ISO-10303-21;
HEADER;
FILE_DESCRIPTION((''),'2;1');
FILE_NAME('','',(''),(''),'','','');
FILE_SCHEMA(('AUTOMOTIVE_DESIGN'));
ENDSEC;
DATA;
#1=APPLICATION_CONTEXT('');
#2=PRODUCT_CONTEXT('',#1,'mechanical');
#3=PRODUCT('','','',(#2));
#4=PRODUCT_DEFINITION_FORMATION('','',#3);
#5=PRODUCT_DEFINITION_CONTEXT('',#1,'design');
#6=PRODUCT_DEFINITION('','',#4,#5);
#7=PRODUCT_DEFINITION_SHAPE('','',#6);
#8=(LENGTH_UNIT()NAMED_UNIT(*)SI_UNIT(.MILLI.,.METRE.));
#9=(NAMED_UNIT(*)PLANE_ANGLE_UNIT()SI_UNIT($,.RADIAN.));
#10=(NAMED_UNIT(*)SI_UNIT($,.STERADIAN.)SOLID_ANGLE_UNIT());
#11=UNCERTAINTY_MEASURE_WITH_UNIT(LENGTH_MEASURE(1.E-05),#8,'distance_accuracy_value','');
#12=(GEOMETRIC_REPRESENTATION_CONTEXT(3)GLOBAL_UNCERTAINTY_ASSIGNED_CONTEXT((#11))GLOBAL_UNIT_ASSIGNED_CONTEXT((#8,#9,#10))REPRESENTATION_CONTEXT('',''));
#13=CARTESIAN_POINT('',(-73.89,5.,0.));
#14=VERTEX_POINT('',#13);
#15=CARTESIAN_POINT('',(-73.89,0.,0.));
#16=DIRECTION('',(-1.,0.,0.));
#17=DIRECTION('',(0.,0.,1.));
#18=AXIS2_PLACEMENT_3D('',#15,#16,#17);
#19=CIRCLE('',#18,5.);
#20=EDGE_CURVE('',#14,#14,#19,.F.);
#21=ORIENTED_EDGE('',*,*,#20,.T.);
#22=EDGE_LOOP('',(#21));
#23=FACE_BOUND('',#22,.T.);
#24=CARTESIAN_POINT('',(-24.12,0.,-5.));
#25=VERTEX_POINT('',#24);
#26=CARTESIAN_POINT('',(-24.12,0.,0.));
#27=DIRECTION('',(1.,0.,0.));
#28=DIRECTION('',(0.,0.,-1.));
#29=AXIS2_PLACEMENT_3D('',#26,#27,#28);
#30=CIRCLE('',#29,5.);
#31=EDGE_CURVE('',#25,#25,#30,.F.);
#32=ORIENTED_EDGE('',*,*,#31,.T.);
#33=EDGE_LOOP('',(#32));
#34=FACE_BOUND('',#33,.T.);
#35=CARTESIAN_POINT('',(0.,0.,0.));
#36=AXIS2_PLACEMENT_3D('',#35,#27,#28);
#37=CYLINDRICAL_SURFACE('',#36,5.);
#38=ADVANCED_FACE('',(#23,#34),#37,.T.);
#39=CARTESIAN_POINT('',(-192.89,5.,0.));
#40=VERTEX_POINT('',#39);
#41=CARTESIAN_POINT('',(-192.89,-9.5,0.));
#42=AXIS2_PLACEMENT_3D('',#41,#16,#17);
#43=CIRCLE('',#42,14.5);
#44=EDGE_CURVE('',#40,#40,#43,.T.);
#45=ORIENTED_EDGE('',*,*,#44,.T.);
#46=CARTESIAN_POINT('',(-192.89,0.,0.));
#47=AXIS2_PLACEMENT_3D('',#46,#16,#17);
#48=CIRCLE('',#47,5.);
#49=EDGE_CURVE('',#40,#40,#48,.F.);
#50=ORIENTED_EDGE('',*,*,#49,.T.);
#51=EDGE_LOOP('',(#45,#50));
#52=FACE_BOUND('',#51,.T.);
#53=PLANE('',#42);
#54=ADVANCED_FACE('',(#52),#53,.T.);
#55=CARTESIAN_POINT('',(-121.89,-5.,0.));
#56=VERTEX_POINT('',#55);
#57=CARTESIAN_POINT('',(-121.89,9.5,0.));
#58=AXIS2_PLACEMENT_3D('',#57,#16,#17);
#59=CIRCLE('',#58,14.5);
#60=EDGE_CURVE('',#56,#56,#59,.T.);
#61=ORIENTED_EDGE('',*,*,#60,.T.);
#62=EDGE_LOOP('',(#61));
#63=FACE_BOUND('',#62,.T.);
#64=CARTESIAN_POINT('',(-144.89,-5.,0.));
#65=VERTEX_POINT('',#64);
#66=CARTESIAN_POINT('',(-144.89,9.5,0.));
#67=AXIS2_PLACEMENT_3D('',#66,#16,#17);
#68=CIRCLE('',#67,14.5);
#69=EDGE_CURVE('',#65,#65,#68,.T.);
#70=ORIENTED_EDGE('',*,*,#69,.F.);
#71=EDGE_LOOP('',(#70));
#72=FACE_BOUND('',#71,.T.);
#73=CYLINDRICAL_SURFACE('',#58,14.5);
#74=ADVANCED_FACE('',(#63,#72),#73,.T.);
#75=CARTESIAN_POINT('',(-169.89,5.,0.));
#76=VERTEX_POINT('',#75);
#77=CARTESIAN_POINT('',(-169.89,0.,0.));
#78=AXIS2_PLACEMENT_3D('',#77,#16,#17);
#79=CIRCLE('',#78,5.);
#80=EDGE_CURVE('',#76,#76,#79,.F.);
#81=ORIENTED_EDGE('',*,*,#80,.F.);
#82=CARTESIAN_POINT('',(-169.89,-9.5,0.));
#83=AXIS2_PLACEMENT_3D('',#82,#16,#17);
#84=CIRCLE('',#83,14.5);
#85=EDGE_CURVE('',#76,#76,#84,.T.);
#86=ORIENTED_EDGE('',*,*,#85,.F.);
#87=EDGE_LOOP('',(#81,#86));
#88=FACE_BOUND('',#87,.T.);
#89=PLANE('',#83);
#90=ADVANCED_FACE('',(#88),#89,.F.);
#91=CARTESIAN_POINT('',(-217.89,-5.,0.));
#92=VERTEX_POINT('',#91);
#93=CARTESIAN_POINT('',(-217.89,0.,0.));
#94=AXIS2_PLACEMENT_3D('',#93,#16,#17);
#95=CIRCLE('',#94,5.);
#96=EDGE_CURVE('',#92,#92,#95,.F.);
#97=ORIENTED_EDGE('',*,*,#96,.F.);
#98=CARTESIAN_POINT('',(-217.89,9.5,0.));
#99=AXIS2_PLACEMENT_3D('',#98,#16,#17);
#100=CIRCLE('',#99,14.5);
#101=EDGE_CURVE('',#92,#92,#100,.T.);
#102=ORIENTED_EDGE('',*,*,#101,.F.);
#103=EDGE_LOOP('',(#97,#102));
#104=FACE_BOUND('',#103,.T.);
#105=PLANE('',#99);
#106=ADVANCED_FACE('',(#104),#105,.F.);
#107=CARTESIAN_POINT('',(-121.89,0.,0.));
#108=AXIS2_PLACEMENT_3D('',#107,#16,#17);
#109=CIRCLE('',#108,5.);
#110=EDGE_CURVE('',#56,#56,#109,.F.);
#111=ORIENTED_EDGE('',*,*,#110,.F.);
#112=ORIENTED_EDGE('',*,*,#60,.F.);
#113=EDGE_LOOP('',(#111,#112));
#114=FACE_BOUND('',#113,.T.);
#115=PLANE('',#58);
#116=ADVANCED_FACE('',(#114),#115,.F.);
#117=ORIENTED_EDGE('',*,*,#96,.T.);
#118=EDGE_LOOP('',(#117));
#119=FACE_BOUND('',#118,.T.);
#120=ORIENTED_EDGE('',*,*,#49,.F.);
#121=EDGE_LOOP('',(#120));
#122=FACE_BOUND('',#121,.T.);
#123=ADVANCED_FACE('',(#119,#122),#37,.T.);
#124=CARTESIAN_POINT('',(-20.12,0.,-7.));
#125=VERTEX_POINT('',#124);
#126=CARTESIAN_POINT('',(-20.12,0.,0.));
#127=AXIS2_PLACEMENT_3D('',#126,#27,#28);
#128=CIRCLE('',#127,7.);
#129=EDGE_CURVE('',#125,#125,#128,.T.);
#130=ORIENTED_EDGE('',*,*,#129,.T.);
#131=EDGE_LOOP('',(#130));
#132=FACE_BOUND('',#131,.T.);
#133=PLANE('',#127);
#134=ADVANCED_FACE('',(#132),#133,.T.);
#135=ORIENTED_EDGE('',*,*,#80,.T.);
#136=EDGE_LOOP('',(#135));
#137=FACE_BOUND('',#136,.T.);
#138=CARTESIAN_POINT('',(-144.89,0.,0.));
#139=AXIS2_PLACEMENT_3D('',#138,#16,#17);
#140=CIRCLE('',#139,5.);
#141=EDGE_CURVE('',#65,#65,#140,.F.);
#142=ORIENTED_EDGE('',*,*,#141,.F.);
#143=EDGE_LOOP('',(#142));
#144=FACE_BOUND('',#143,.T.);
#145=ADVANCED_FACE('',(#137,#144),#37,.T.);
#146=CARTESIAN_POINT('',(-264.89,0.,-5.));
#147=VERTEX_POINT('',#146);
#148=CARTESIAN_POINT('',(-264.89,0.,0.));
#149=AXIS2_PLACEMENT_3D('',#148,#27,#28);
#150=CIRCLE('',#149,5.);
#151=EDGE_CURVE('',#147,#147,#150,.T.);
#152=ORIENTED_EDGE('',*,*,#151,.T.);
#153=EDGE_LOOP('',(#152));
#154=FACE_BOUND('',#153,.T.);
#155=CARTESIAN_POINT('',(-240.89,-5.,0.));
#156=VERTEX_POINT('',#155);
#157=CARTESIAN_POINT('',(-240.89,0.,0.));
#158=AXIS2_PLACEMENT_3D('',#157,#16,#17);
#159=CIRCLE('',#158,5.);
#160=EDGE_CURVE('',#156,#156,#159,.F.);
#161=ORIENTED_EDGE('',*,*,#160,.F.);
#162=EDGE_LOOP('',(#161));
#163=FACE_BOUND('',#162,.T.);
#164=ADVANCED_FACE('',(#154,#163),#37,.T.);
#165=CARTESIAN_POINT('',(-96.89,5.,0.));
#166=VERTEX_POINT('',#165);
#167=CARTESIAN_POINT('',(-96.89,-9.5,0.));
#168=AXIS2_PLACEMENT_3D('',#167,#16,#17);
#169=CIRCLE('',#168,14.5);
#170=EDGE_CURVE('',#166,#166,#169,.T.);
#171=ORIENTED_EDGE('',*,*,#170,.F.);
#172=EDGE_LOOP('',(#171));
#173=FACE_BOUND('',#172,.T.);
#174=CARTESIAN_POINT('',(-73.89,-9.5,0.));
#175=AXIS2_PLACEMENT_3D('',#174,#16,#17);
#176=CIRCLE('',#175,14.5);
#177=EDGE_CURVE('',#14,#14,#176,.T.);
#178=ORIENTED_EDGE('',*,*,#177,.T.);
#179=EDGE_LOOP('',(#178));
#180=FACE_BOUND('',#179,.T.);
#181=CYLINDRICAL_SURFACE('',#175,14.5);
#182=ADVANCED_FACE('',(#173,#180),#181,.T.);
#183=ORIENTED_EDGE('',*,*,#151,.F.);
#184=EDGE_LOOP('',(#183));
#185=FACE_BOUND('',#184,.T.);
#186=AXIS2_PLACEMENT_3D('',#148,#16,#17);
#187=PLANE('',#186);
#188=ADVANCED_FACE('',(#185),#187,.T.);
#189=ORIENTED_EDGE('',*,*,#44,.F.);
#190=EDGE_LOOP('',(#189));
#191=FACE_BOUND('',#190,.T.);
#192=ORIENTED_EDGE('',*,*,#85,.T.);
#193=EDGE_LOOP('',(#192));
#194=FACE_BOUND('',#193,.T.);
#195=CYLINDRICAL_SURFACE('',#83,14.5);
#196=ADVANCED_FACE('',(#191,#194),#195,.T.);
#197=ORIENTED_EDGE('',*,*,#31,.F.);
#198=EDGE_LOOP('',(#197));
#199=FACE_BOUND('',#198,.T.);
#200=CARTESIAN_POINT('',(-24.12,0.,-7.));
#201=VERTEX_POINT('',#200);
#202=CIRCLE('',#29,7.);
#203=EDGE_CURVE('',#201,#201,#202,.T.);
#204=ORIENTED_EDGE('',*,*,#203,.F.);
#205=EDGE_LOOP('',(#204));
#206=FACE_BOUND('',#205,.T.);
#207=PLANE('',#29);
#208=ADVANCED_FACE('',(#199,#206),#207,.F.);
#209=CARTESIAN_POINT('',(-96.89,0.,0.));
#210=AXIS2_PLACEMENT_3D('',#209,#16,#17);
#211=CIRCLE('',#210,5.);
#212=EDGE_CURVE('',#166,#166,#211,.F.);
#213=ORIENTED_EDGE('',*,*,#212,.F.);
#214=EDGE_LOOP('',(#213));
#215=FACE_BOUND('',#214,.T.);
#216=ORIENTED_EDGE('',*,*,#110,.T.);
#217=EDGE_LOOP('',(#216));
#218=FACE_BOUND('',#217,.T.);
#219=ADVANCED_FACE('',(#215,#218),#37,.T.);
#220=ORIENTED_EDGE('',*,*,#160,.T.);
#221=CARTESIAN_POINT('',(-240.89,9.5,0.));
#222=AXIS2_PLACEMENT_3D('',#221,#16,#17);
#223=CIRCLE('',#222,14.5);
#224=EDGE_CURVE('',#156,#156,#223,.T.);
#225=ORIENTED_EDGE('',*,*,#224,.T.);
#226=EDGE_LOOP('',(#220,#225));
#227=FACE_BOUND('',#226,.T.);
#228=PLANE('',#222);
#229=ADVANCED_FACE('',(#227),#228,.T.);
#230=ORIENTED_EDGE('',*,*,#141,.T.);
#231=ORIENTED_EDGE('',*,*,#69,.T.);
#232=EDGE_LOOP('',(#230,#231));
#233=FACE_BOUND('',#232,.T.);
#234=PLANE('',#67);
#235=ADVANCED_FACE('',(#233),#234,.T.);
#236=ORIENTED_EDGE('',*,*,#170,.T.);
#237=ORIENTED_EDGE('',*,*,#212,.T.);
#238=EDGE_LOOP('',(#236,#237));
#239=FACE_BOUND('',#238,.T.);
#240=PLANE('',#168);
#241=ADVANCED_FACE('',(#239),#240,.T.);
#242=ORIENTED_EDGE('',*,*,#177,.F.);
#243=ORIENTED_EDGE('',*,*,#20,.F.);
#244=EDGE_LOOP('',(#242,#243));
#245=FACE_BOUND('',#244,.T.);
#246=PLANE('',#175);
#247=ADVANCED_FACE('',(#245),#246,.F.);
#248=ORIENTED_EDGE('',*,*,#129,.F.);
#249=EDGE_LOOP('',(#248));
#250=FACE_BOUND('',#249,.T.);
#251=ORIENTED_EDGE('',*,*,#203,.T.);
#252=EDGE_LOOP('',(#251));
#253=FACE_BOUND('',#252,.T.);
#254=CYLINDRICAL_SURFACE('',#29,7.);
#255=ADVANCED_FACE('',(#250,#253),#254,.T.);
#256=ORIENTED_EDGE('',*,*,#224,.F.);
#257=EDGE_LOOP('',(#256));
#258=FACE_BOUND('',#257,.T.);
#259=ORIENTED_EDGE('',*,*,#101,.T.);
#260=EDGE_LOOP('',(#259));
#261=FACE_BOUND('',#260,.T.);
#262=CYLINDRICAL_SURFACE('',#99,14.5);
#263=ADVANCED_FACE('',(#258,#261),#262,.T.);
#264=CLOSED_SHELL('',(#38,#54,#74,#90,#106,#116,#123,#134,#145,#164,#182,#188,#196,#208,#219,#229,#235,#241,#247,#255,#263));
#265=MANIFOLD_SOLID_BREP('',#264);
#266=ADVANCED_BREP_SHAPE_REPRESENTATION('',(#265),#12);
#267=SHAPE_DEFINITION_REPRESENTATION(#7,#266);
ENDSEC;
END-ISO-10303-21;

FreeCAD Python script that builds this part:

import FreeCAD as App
import Part
import Sketcher

V = App.Vector
Q = App.Units.Quantity


def add_polygon(sketch, points):
    """Adds a closed chain of lines whose ends are joined by coincident constraints."""
    first, n = sketch.GeometryCount, len(points)
    for a, b in zip(points, points[1:] + points[:1]):
        sketch.addGeometry(Part.LineSegment(App.Vector(*a, 0), App.Vector(*b, 0)), False)
    for i in range(n):
        sketch.addConstraint(Sketcher.Constraint("Coincident", first + i, 2, first + (i + 1) % n, 1))

doc = App.newDocument("Part")
body = doc.addObject("PartDesign::Body", "Body")

sketch1 = doc.addObject("Sketcher::SketchObject", "Sketch")
body.addObject(sketch1)
sketch1.AttachmentSupport = (doc.XY_Plane, [""])
sketch1.MapMode = "FlatFace"
add_polygon(sketch1, [(-264.89, 5), (-264.89, 0), (0, 0), (0, 5)])
sketch1.addConstraint([
    Sketcher.Constraint("Vertical", 0),
    Sketcher.Constraint("Horizontal", 1),
    Sketcher.Constraint("Vertical", 2),
    Sketcher.Constraint("Horizontal", 3),
    Sketcher.Constraint("Coincident", 1, 2, -1, 1),
    Sketcher.Constraint("DistanceY", 0, 2, 0, 1, Q("5 mm")),
    Sketcher.Constraint("DistanceX", 1, 1, 1, 2, Q("264.89 mm")),
])
revolution = doc.addObject("PartDesign::Revolution", "Revolution")
body.addObject(revolution)
revolution.Profile = sketch1
revolution.ReferenceAxis = (sketch1, ["H_Axis"])
revolution.Angle = 360

sketch2 = doc.addObject("Sketcher::SketchObject", "Sketch001")
body.addObject(sketch2)
sketch2.AttachmentSupport = (doc.YZ_Plane, [""])
sketch2.MapMode = "FlatFace"
sketch2.AttachmentOffset = App.Placement(V(0, 0, -240.89), App.Rotation())
sketch2.addGeometry(Part.Circle(V(9.5, 0, 0), V(0, 0, 1), 14.5), False)
sketch2.addConstraint([
    Sketcher.Constraint("PointOnObject", 0, 3, -1),
    Sketcher.Constraint("Diameter", 0, Q("29 mm")),
    Sketcher.Constraint("DistanceX", -1, 1, 0, 3, Q("9.5 mm")),
])
pad1 = doc.addObject("PartDesign::Pad", "Pad")
body.addObject(pad1)
pad1.Profile = sketch2
pad1.Length = 23

sketch3 = doc.addObject("Sketcher::SketchObject", "Sketch002")
body.addObject(sketch3)
sketch3.AttachmentSupport = (doc.YZ_Plane, [""])
sketch3.MapMode = "FlatFace"
sketch3.AttachmentOffset = App.Placement(V(0, 0, -192.89), App.Rotation())
sketch3.addGeometry(Part.Circle(V(-9.5, 0, 0), V(0, 0, 1), 14.5), False)
sketch3.addConstraint([
    Sketcher.Constraint("PointOnObject", 0, 3, -1),
    Sketcher.Constraint("Diameter", 0, Q("29 mm")),
    Sketcher.Constraint("DistanceX", 0, 3, -1, 1, Q("9.5 mm")),
])
pad2 = doc.addObject("PartDesign::Pad", "Pad001")
body.addObject(pad2)
pad2.Profile = sketch3
pad2.Length = 23

sketch4 = doc.addObject("Sketcher::SketchObject", "Sketch003")
body.addObject(sketch4)
sketch4.AttachmentSupport = (doc.YZ_Plane, [""])
sketch4.MapMode = "FlatFace"
sketch4.AttachmentOffset = App.Placement(V(0, 0, -144.89), App.Rotation())
sketch4.addGeometry(Part.Circle(V(9.5, 0, 0), V(0, 0, 1), 14.5), False)
sketch4.addConstraint([
    Sketcher.Constraint("PointOnObject", 0, 3, -1),
    Sketcher.Constraint("Diameter", 0, Q("29 mm")),
    Sketcher.Constraint("DistanceX", -1, 1, 0, 3, Q("9.5 mm")),
])
pad3 = doc.addObject("PartDesign::Pad", "Pad002")
body.addObject(pad3)
pad3.Profile = sketch4
pad3.Length = 23

sketch5 = doc.addObject("Sketcher::SketchObject", "Sketch004")
body.addObject(sketch5)
sketch5.AttachmentSupport = (doc.YZ_Plane, [""])
sketch5.MapMode = "FlatFace"
sketch5.AttachmentOffset = App.Placement(V(0, 0, -96.89), App.Rotation())
sketch5.addGeometry(Part.Circle(V(-9.5, 0, 0), V(0, 0, 1), 14.5), False)
sketch5.addConstraint([
    Sketcher.Constraint("PointOnObject", 0, 3, -1),
    Sketcher.Constraint("Diameter", 0, Q("29 mm")),
    Sketcher.Constraint("DistanceX", 0, 3, -1, 1, Q("9.5 mm")),
])
pad4 = doc.addObject("PartDesign::Pad", "Pad003")
body.addObject(pad4)
pad4.Profile = sketch5
pad4.Length = 23

sketch6 = doc.addObject("Sketcher::SketchObject", "Sketch005")
body.addObject(sketch6)
sketch6.AttachmentSupport = (doc.YZ_Plane, [""])
sketch6.MapMode = "FlatFace"
sketch6.addGeometry(Part.Circle(V(0, 0, 0), V(0, 0, 1), 5), False)
sketch6.addConstraint([
    Sketcher.Constraint("Coincident", 0, 3, -1, 1),
    Sketcher.Constraint("Diameter", 0, Q("10 mm")),
])
pocket1 = doc.addObject("PartDesign::Pocket", "Pocket")
body.addObject(pocket1)
pocket1.Profile = sketch6
pocket1.Length = 20.12

sketch7 = doc.addObject("Sketcher::SketchObject", "Sketch006")
body.addObject(sketch7)
sketch7.AttachmentSupport = (doc.YZ_Plane, [""])
sketch7.MapMode = "FlatFace"
sketch7.AttachmentOffset = App.Placement(V(0, 0, -20.12), App.Rotation())
sketch7.addGeometry(Part.Circle(V(0, 0, 0), V(0, 0, 1), 7), False)
sketch7.addConstraint([
    Sketcher.Constraint("Coincident", 0, 3, -1, 1),
    Sketcher.Constraint("Diameter", 0, Q("14 mm")),
])
pad5 = doc.addObject("PartDesign::Pad", "Pad004")
body.addObject(pad5)
pad5.Profile = sketch7
pad5.Length = 4
pad5.Reversed = True

doc.recompute()
